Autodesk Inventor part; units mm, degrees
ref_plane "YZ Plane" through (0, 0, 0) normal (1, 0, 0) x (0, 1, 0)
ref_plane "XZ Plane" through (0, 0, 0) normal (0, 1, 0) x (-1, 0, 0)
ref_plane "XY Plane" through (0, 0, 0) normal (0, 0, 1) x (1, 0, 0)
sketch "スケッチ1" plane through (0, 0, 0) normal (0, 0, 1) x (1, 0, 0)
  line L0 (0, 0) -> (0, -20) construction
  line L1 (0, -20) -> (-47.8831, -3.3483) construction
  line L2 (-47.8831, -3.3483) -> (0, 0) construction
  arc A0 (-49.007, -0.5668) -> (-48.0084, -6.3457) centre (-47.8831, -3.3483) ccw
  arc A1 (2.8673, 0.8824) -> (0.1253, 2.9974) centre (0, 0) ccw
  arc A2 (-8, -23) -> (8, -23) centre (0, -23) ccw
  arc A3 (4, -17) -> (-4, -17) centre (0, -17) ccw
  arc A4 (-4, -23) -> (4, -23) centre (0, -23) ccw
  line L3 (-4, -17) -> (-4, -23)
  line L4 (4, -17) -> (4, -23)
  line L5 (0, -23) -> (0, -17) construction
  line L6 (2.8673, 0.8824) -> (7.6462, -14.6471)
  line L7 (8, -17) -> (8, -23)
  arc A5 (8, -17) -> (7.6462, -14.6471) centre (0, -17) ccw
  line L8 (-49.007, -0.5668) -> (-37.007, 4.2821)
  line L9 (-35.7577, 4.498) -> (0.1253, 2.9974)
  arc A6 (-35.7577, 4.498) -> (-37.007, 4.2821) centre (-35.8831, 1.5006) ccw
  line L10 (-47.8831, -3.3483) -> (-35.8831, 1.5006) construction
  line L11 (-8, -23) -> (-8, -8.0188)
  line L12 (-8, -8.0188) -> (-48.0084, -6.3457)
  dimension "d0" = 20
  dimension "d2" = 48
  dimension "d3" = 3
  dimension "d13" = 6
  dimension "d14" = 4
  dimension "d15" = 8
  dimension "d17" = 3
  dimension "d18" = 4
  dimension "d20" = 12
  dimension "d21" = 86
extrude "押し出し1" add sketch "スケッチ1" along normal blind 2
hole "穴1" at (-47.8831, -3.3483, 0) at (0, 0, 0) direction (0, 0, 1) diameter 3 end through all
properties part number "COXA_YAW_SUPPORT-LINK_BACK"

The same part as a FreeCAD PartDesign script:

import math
import FreeCAD as App
import Part
import Sketcher

V = App.Vector
Q = App.Units.Quantity

doc = App.newDocument("Part")
body = doc.addObject("PartDesign::Body", "Body")

# Sketch on XY plane
sketch1 = body.newObject("Sketcher::SketchObject", "Sketch")
sketch1.AttachmentSupport = (doc.getObject("XY_Plane"), [""])
sketch1.MapMode = "FlatFace"
sketch1.addGeometry([
    Part.LineSegment(V(-37.007, 4.2821, 0), V(-49.007, -0.5668, 0)),  # 0
    Part.ArcOfCircle(Part.Circle(V(-47.8831, -3.3483, 0), V(0, 0, 1), 2.999982), math.radians(112.001789), math.radians(267.606264)),  # 1
    Part.LineSegment(V(-48.0084, -6.3457, 0), V(-8, -8.0188, 0)),  # 2
    Part.LineSegment(V(-8, -8.0188, 0), V(-8, -23, 0)),  # 3
    Part.ArcOfCircle(Part.Circle(V(0, -23, 0), V(0, 0, 1), 8), math.radians(180), math.radians(360)),  # 4
    Part.LineSegment(V(8, -23, 0), V(8, -17, 0)),  # 5
    Part.ArcOfCircle(Part.Circle(V(-0.001442, -17.000108, 0), V(0, 0, 1), 8.001442), math.radians(0.000772), math.radians(17.101958)),  # 6
    Part.LineSegment(V(7.6462, -14.6471, 0), V(2.8673, 0.8824, 0)),  # 7
    Part.ArcOfCircle(Part.Circle(V(0, 0, 0), V(0, 0, 1), 3.000007), math.radians(17.105537), math.radians(87.606264)),  # 8
    Part.LineSegment(V(0.1253, 2.9974, 0), V(-35.7577, 4.498, 0)),  # 9
    Part.ArcOfCircle(Part.Circle(V(-35.8831, 1.5006, 0), V(0, 0, 1), 3.000022), math.radians(87.604356), math.radians(112.001789)),  # 10
    Part.ArcOfCircle(Part.Circle(V(0, -17, 0), V(0, 0, 1), 4), math.radians(0), math.radians(180)),  # 11
    Part.LineSegment(V(4, -17, 0), V(4, -23, 0)),  # 12
    Part.ArcOfCircle(Part.Circle(V(0, -23, 0), V(0, 0, 1), 4), math.radians(180), math.radians(360)),  # 13
    Part.LineSegment(V(-4, -23, 0), V(-4, -17, 0)),  # 14
], False)
sketch1.addConstraint([
    Sketcher.Constraint("Coincident", 0, 2, 1, 1),
    Sketcher.Constraint("Coincident", 1, 2, 2, 1),
    Sketcher.Constraint("Coincident", 2, 2, 3, 1),
    Sketcher.Constraint("Coincident", 3, 2, 4, 1),
    Sketcher.Constraint("Coincident", 4, 2, 5, 1),
    Sketcher.Constraint("Coincident", 5, 2, 6, 1),
    Sketcher.Constraint("Coincident", 6, 2, 7, 1),
    Sketcher.Constraint("Coincident", 7, 2, 8, 1),
    Sketcher.Constraint("Coincident", 8, 2, 9, 1),
    Sketcher.Constraint("Coincident", 9, 2, 10, 1),
    Sketcher.Constraint("Coincident", 10, 2, 0, 1),
    Sketcher.Constraint("Coincident", 11, 1, 12, 1),
    Sketcher.Constraint("Coincident", 12, 2, 13, 2),
    Sketcher.Constraint("Coincident", 13, 1, 14, 1),
    Sketcher.Constraint("Coincident", 14, 2, 11, 2),
    Sketcher.Constraint("Vertical", 3),
    Sketcher.Constraint("Vertical", 5),
    Sketcher.Constraint("Vertical", 12),
    Sketcher.Constraint("Vertical", 14),
    Sketcher.Constraint("Coincident", 8, 3, -1, 1),
    Sketcher.Constraint("Coincident", 13, 3, 4, 3),
    Sketcher.Constraint("PointOnObject", 4, 3, -2),
    Sketcher.Constraint("Radius", 1, Q("3 mm")),
    Sketcher.Constraint("Radius", 4, Q("8 mm")),
    Sketcher.Constraint("Radius", 8, Q("3 mm")),
    Sketcher.Constraint("Radius", 10, Q("3 mm")),
    Sketcher.Constraint("Radius", 11, Q("4 mm")),
    Sketcher.Constraint("DistanceY", 5, 1, 5, 2, Q("6 mm")),
    Sketcher.Constraint("DistanceY", 12, 2, 12, 1, Q("6 mm")),
    Sketcher.Constraint("DistanceY", 14, 1, 14, 2, Q("6 mm")),
    Sketcher.Constraint("DistanceY", 4, 3, 6, 3, Q("6 mm")),
    Sketcher.Constraint("DistanceX", 1, 3, 10, 3, Q("12 mm")),
    Sketcher.Constraint("DistanceY", 4, 3, 11, 3, Q("6 mm")),
    Sketcher.Constraint("DistanceY", 3, 2, 6, 3, Q("6 mm")),
    Sketcher.Constraint("DistanceY", 4, 2, 11, 3, Q("6 mm")),
    Sketcher.Constraint("DistanceX", 0, 2, 10, 2, Q("12 mm")),
    Sketcher.Constraint("DistanceY", 4, 3, 11, 1, Q("6 mm")),
    Sketcher.Constraint("DistanceY", 13, 1, 6, 3, Q("6 mm")),
    Sketcher.Constraint("DistanceY", 4, 3, -1, 1, Q("23 mm")),
    Sketcher.Constraint("Radius", 6, Q("8.0014 mm")),
    Sketcher.Constraint("DistanceY", 3, 2, 3, 1, Q("14.9812 mm")),
    Sketcher.Constraint("DistanceX", 1, 3, -1, 1, Q("47.883 mm")),
    Sketcher.Constraint("DistanceX", 0, 2, -1, 1, Q("49.007 mm")),
    Sketcher.Constraint("DistanceY", 6, 2, -1, 1, Q("14.647 mm")),
    Sketcher.Constraint("DistanceY", -1, 1, 9, 2, Q("4.498 mm")),
    Sketcher.Constraint("DistanceY", 1, 3, 10, 3, Q("4.849 mm")),
    Sketcher.Constraint("DistanceX", 1, 2, 6, 3, Q("48.007 mm")),
    Sketcher.Constraint("DistanceX", 7, 2, 6, 2, Q("4.779 mm")),
    Sketcher.Constraint("DistanceX", 8, 2, 7, 2, Q("2.742 mm")),
    Sketcher.Constraint("Distance", 9, Q("35.9144 mm")),
])
pad1 = body.newObject("PartDesign::Pad", "Pad")
pad1.Profile = sketch1
pad1.Length = 2

# Sketch on XY plane
sketch2 = body.newObject("Sketcher::SketchObject", "Sketch001")
sketch2.AttachmentSupport = (doc.getObject("XY_Plane"), [""])
sketch2.MapMode = "FlatFace"
sketch2.addGeometry([
    Part.Circle(V(-47.8831, -3.3483, 0), V(0, 0, 1), 1.5),
    Part.Circle(V(0, 0, 0), V(0, 0, 1), 1.5),
], False)
sketch2.addConstraint([
    Sketcher.Constraint("Coincident", 1, 3, -1, 1),
    Sketcher.Constraint("Equal", 0, 1),
    Sketcher.Constraint("Diameter", 0, Q("3 mm")),
    Sketcher.Constraint("DistanceX", 0, 3, -1, 1, Q("47.883 mm")),
    Sketcher.Constraint("DistanceY", 0, 3, -1, 1, Q("3.3483 mm")),
])
doc.recompute()
hole = body.newObject("PartDesign::Hole", "Hole")
hole.Profile = sketch2
hole.ThreadType = "None"
hole.Diameter = 3
hole.DepthType = "ThroughAll"
hole.Reversed = True

doc.recompute()
